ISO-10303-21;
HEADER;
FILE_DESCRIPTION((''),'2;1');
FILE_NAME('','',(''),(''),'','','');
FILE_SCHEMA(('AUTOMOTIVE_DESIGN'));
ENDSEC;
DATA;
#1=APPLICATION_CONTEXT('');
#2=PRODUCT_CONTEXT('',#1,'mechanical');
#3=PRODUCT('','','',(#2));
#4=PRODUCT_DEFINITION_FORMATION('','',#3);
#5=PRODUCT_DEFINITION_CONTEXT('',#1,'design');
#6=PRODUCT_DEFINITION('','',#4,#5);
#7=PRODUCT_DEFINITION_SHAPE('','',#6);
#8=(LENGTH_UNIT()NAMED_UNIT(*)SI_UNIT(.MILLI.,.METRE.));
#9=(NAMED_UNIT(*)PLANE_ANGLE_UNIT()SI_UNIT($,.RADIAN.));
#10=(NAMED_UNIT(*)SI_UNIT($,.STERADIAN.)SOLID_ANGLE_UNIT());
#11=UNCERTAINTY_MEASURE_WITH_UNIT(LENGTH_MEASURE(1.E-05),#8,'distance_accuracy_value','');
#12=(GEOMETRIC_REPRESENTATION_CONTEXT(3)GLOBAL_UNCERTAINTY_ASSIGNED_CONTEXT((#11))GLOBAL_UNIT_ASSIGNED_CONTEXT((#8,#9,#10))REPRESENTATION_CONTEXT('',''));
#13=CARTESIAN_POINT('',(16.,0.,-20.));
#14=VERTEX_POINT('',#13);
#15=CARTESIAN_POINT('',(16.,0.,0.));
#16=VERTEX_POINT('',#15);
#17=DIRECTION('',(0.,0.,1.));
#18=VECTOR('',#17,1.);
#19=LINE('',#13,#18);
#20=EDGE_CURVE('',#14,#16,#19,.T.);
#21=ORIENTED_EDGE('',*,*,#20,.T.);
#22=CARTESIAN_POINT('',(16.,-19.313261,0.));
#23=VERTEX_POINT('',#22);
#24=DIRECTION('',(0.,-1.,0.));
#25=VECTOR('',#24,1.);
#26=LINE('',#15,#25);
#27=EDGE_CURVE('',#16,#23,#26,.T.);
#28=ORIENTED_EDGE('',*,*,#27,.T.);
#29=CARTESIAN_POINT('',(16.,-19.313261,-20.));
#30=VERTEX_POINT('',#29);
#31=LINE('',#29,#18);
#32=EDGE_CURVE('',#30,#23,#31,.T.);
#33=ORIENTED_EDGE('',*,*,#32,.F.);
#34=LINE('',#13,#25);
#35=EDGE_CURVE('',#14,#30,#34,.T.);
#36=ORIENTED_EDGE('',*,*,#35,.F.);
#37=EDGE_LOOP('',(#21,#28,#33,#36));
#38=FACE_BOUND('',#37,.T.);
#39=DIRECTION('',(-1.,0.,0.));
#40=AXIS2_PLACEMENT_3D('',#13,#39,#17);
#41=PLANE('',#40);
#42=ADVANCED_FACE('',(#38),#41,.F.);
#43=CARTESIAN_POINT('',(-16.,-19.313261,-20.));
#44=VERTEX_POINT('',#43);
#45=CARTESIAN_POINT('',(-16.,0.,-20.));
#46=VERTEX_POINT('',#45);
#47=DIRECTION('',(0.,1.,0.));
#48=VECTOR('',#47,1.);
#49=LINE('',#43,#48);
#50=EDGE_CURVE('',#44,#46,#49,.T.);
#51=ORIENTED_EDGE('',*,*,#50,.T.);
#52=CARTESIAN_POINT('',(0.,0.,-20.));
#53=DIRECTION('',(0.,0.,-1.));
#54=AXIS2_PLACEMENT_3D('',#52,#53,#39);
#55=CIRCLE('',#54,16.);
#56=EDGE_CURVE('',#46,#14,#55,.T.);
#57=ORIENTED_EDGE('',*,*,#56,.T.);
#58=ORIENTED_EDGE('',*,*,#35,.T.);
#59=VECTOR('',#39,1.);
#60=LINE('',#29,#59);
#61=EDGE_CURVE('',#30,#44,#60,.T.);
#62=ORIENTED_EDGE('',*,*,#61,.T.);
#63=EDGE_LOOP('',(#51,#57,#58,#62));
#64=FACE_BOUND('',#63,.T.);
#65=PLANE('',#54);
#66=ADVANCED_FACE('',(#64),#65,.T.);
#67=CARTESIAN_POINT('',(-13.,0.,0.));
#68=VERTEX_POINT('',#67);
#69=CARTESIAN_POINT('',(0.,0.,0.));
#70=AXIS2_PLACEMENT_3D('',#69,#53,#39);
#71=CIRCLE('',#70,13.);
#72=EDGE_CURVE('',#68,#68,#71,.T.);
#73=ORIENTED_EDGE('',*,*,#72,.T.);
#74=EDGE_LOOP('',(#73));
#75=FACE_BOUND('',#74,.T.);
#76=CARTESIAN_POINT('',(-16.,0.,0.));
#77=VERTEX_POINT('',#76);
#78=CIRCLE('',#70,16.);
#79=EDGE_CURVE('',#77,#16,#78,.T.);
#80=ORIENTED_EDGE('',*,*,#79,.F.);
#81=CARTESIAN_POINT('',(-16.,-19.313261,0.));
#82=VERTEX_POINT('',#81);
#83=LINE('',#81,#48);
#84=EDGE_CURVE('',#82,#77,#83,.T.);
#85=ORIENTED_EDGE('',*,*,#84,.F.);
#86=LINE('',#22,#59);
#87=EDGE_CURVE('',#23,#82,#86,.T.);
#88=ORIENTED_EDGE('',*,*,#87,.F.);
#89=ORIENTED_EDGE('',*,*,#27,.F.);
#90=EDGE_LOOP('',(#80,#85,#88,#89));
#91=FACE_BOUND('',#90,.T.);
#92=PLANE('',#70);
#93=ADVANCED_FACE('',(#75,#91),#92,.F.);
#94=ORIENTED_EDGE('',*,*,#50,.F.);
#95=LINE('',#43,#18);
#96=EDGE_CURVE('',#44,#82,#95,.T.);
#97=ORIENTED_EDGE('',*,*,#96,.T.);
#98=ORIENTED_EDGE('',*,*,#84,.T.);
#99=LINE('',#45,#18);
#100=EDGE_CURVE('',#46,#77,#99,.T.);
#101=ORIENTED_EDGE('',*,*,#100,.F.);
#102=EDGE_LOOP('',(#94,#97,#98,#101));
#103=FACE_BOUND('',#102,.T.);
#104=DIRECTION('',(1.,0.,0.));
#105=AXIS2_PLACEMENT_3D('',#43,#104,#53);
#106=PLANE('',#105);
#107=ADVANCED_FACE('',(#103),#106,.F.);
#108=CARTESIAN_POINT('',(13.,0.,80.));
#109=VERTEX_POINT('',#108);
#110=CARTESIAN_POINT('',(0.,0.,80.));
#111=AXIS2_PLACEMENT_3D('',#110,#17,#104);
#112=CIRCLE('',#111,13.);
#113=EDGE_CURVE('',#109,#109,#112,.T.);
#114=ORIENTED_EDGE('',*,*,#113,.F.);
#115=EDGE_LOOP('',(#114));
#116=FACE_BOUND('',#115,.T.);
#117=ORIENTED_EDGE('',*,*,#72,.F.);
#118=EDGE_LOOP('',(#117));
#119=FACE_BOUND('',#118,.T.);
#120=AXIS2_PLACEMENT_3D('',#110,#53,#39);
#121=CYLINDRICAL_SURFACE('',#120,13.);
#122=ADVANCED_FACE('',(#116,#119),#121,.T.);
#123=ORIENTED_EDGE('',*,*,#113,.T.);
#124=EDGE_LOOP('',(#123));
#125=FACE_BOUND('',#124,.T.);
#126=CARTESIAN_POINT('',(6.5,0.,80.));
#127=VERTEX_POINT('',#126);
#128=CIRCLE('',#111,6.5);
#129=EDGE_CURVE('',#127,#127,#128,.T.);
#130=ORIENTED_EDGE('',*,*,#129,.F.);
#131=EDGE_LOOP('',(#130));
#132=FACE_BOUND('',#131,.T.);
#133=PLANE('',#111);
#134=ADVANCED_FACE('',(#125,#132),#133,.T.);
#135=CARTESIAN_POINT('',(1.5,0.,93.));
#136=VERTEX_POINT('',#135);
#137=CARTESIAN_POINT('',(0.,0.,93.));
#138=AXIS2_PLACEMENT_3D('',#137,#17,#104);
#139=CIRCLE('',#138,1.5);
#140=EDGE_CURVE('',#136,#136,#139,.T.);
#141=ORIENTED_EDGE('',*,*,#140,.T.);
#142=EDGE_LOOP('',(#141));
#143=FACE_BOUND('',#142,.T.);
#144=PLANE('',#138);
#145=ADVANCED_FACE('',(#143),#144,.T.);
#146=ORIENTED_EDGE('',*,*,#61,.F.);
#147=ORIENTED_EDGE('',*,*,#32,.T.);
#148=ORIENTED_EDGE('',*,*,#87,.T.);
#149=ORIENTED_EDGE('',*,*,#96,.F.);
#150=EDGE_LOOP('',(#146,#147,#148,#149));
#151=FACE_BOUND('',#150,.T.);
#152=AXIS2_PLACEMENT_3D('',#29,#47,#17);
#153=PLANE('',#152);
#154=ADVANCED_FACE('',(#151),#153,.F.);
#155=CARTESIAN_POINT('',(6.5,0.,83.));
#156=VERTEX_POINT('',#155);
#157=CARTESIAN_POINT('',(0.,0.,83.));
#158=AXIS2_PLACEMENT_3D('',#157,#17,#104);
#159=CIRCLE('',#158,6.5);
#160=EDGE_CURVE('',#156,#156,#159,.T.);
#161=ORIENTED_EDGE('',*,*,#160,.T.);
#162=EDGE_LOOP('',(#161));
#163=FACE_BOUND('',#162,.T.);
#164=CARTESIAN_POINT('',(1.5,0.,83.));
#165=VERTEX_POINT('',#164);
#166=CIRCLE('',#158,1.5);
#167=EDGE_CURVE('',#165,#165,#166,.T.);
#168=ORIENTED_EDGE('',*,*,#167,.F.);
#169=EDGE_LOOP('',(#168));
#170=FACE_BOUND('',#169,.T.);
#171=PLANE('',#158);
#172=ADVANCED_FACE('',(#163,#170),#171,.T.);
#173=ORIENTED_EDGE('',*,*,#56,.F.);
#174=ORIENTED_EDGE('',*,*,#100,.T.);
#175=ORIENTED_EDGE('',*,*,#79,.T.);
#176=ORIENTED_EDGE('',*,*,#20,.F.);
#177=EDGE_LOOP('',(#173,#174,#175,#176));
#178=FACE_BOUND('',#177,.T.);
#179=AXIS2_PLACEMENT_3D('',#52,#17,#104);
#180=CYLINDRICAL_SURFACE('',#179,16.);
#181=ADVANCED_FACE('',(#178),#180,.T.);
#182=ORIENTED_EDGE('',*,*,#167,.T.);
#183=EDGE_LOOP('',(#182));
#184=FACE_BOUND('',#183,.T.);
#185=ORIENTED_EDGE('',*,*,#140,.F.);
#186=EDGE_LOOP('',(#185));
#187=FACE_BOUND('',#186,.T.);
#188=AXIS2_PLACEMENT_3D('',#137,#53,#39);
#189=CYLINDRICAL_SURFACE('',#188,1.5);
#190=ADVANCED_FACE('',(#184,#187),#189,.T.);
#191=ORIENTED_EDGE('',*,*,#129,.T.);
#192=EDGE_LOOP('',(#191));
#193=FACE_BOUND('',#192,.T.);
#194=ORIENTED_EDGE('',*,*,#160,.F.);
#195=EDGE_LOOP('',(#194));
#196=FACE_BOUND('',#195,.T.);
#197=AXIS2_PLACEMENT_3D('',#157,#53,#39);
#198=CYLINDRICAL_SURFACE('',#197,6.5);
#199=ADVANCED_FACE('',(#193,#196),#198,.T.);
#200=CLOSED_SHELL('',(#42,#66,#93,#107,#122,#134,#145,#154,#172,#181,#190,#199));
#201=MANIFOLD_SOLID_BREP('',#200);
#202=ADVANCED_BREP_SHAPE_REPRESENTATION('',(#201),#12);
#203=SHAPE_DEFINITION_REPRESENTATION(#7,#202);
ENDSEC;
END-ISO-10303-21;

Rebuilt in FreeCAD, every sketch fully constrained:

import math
import FreeCAD as App
import Part
import Sketcher
from FreeCAD import Vector
Q = App.Units.Quantity

doc = App.newDocument("Part")
body = doc.addObject("PartDesign::Body", "Body")

# Sketch on XY plane
sketch1 = body.newObject("Sketcher::SketchObject", "Sketch")
sketch1.AttachmentSupport = (doc.getObject("XY_Plane"), [""])
sketch1.MapMode = "FlatFace"
sketch1.addGeometry(Part.Circle(Vector(0, 0, 0), Vector(0, 0, 1), 13), False)
sketch1.addConstraint(Sketcher.Constraint("Coincident", 0, 3, -1, 1))
sketch1.addConstraint(Sketcher.Constraint("Diameter", 0, Q("26 mm")))
pad1 = body.newObject("PartDesign::Pad", "Pad")
pad1.Profile = sketch1
pad1.Length = 80

# Sketch on XY plane
sketch2 = body.newObject("Sketcher::SketchObject", "Sketch001")
sketch2.AttachmentSupport = (doc.getObject("XY_Plane"), [""])
sketch2.MapMode = "FlatFace"
sketch2.AttachmentOffset = App.Placement(Vector(0, 0, 80), App.Rotation())
sketch2.addGeometry(Part.Circle(Vector(0, 0, 0), Vector(0, 0, 1), 6.5), False)
sketch2.addConstraint(Sketcher.Constraint("Coincident", 0, 3, -1, 1))
sketch2.addConstraint(Sketcher.Constraint("Diameter", 0, Q("13 mm")))
pad2 = body.newObject("PartDesign::Pad", "Pad001")
pad2.Profile = sketch2
pad2.Length = 3

# Sketch on XY plane
sketch3 = body.newObject("Sketcher::SketchObject", "Sketch002")
sketch3.AttachmentSupport = (doc.getObject("XY_Plane"), [""])
sketch3.MapMode = "FlatFace"
sketch3.AttachmentOffset = App.Placement(Vector(0, 0, 83), App.Rotation())
sketch3.addGeometry(Part.Circle(Vector(0, 0, 0), Vector(0, 0, 1), 1.5), False)
sketch3.addConstraint(Sketcher.Constraint("Coincident", 0, 3, -1, 1))
sketch3.addConstraint(Sketcher.Constraint("Diameter", 0, Q("3 mm")))
pad3 = body.newObject("PartDesign::Pad", "Pad002")
pad3.Profile = sketch3
pad3.Length = 10

# Sketch on XY plane
sketch4 = body.newObject("Sketcher::SketchObject", "Sketch003")
sketch4.AttachmentSupport = (doc.getObject("XY_Plane"), [""])
sketch4.MapMode = "FlatFace"
sketch4.addGeometry(Part.LineSegment(Vector(16, 0, 0), Vector(16, -19.313261, 0)), False)
sketch4.addGeometry(Part.LineSegment(Vector(16, -19.313261, 0), Vector(-16, -19.313261, 0)), False)
sketch4.addGeometry(Part.LineSegment(Vector(-16, -19.313261, 0), Vector(-16, 0, 0)), False)
sketch4.addGeometry(Part.ArcOfCircle(Part.Circle(Vector(0, 0, 0), Vector(0, 0, 1), 16), math.radians(0), math.radians(180)), False)
sketch4.addConstraint(Sketcher.Constraint("Coincident", 0, 2, 1, 1))
sketch4.addConstraint(Sketcher.Constraint("Coincident", 1, 2, 2, 1))
sketch4.addConstraint(Sketcher.Constraint("Tangent", 2, 2, 3, 2))
sketch4.addConstraint(Sketcher.Constraint("Tangent", 3, 1, 0, 1))
sketch4.addConstraint(Sketcher.Constraint("Vertical", 0))
sketch4.addConstraint(Sketcher.Constraint("Horizontal", 1))
sketch4.addConstraint(Sketcher.Constraint("Vertical", 2))
sketch4.addConstraint(Sketcher.Constraint("Coincident", 3, 3, -1, 1))
sketch4.addConstraint(Sketcher.Constraint("Radius", 3, Q("16 mm")))
sketch4.addConstraint(Sketcher.Constraint("DistanceY", 0, 2, 0, 1, Q("19.313261 mm")))
pad4 = body.newObject("PartDesign::Pad", "Pad003")
pad4.Profile = sketch4
pad4.Length = 20
pad4.Reversed = True

doc.recompute()
